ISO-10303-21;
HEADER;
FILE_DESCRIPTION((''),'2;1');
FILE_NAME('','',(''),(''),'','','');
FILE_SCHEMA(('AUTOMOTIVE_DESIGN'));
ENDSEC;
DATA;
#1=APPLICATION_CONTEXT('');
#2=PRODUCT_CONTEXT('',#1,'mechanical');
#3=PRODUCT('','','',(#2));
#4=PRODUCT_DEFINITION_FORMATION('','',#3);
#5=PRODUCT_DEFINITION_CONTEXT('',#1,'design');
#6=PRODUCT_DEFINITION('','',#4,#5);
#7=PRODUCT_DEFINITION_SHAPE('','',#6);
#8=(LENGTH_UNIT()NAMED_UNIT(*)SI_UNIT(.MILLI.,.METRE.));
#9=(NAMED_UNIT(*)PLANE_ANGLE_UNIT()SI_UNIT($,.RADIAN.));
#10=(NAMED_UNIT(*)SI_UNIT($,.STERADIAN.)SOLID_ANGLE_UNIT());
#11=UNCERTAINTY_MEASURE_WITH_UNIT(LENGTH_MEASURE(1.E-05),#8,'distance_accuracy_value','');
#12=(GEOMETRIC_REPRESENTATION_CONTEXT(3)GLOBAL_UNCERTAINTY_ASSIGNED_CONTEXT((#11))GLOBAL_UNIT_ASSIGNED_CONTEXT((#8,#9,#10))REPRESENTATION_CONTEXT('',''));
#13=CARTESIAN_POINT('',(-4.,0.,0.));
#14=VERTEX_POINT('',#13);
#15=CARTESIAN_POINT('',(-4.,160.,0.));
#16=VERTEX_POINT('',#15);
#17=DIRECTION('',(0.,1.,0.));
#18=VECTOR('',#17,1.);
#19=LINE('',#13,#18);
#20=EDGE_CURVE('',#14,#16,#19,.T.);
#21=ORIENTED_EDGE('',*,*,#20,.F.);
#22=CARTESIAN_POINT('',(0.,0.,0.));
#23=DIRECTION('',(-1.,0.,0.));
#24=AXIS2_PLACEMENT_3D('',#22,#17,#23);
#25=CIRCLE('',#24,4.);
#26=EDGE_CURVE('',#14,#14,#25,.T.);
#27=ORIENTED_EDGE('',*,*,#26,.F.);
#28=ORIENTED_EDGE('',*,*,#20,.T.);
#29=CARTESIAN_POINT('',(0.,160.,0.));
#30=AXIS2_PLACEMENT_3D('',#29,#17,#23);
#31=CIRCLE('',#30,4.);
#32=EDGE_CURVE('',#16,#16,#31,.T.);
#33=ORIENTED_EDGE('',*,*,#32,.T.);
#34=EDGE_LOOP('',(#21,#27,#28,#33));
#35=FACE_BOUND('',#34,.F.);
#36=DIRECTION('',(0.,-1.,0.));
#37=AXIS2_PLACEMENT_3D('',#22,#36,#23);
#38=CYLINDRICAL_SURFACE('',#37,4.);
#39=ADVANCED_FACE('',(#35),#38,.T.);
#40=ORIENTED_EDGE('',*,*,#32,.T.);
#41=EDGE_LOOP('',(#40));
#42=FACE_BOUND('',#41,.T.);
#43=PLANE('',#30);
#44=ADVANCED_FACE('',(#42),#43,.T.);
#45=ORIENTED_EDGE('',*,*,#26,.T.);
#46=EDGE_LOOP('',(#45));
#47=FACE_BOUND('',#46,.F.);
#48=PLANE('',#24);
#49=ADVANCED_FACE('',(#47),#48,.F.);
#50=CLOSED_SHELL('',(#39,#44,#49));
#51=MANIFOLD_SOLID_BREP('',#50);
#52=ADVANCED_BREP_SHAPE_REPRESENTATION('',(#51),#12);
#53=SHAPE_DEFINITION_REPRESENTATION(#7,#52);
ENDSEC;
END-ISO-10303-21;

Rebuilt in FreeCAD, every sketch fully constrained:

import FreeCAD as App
import Part
import Sketcher

doc = App.newDocument("Part")
body = doc.addObject("PartDesign::Body", "Body")

# Sketch on XZ plane
sketch1 = body.newObject("Sketcher::SketchObject", "Sketch")
sketch1.AttachmentSupport = (doc.getObject("XZ_Plane"), [""])
sketch1.MapMode = "FlatFace"
sketch1.addGeometry(Part.Circle(App.Vector(0, 0, 0), App.Vector(0, 0, 1), 4), False)
sketch1.addConstraint(Sketcher.Constraint("Coincident", 0, 3, -1, 1))
sketch1.addConstraint(Sketcher.Constraint("Diameter", 0, 8.0))
pad1 = body.newObject("PartDesign::Pad", "Pad")
pad1.Profile = sketch1
pad1.Length = 160
pad1.Reversed = True

doc.recompute()
